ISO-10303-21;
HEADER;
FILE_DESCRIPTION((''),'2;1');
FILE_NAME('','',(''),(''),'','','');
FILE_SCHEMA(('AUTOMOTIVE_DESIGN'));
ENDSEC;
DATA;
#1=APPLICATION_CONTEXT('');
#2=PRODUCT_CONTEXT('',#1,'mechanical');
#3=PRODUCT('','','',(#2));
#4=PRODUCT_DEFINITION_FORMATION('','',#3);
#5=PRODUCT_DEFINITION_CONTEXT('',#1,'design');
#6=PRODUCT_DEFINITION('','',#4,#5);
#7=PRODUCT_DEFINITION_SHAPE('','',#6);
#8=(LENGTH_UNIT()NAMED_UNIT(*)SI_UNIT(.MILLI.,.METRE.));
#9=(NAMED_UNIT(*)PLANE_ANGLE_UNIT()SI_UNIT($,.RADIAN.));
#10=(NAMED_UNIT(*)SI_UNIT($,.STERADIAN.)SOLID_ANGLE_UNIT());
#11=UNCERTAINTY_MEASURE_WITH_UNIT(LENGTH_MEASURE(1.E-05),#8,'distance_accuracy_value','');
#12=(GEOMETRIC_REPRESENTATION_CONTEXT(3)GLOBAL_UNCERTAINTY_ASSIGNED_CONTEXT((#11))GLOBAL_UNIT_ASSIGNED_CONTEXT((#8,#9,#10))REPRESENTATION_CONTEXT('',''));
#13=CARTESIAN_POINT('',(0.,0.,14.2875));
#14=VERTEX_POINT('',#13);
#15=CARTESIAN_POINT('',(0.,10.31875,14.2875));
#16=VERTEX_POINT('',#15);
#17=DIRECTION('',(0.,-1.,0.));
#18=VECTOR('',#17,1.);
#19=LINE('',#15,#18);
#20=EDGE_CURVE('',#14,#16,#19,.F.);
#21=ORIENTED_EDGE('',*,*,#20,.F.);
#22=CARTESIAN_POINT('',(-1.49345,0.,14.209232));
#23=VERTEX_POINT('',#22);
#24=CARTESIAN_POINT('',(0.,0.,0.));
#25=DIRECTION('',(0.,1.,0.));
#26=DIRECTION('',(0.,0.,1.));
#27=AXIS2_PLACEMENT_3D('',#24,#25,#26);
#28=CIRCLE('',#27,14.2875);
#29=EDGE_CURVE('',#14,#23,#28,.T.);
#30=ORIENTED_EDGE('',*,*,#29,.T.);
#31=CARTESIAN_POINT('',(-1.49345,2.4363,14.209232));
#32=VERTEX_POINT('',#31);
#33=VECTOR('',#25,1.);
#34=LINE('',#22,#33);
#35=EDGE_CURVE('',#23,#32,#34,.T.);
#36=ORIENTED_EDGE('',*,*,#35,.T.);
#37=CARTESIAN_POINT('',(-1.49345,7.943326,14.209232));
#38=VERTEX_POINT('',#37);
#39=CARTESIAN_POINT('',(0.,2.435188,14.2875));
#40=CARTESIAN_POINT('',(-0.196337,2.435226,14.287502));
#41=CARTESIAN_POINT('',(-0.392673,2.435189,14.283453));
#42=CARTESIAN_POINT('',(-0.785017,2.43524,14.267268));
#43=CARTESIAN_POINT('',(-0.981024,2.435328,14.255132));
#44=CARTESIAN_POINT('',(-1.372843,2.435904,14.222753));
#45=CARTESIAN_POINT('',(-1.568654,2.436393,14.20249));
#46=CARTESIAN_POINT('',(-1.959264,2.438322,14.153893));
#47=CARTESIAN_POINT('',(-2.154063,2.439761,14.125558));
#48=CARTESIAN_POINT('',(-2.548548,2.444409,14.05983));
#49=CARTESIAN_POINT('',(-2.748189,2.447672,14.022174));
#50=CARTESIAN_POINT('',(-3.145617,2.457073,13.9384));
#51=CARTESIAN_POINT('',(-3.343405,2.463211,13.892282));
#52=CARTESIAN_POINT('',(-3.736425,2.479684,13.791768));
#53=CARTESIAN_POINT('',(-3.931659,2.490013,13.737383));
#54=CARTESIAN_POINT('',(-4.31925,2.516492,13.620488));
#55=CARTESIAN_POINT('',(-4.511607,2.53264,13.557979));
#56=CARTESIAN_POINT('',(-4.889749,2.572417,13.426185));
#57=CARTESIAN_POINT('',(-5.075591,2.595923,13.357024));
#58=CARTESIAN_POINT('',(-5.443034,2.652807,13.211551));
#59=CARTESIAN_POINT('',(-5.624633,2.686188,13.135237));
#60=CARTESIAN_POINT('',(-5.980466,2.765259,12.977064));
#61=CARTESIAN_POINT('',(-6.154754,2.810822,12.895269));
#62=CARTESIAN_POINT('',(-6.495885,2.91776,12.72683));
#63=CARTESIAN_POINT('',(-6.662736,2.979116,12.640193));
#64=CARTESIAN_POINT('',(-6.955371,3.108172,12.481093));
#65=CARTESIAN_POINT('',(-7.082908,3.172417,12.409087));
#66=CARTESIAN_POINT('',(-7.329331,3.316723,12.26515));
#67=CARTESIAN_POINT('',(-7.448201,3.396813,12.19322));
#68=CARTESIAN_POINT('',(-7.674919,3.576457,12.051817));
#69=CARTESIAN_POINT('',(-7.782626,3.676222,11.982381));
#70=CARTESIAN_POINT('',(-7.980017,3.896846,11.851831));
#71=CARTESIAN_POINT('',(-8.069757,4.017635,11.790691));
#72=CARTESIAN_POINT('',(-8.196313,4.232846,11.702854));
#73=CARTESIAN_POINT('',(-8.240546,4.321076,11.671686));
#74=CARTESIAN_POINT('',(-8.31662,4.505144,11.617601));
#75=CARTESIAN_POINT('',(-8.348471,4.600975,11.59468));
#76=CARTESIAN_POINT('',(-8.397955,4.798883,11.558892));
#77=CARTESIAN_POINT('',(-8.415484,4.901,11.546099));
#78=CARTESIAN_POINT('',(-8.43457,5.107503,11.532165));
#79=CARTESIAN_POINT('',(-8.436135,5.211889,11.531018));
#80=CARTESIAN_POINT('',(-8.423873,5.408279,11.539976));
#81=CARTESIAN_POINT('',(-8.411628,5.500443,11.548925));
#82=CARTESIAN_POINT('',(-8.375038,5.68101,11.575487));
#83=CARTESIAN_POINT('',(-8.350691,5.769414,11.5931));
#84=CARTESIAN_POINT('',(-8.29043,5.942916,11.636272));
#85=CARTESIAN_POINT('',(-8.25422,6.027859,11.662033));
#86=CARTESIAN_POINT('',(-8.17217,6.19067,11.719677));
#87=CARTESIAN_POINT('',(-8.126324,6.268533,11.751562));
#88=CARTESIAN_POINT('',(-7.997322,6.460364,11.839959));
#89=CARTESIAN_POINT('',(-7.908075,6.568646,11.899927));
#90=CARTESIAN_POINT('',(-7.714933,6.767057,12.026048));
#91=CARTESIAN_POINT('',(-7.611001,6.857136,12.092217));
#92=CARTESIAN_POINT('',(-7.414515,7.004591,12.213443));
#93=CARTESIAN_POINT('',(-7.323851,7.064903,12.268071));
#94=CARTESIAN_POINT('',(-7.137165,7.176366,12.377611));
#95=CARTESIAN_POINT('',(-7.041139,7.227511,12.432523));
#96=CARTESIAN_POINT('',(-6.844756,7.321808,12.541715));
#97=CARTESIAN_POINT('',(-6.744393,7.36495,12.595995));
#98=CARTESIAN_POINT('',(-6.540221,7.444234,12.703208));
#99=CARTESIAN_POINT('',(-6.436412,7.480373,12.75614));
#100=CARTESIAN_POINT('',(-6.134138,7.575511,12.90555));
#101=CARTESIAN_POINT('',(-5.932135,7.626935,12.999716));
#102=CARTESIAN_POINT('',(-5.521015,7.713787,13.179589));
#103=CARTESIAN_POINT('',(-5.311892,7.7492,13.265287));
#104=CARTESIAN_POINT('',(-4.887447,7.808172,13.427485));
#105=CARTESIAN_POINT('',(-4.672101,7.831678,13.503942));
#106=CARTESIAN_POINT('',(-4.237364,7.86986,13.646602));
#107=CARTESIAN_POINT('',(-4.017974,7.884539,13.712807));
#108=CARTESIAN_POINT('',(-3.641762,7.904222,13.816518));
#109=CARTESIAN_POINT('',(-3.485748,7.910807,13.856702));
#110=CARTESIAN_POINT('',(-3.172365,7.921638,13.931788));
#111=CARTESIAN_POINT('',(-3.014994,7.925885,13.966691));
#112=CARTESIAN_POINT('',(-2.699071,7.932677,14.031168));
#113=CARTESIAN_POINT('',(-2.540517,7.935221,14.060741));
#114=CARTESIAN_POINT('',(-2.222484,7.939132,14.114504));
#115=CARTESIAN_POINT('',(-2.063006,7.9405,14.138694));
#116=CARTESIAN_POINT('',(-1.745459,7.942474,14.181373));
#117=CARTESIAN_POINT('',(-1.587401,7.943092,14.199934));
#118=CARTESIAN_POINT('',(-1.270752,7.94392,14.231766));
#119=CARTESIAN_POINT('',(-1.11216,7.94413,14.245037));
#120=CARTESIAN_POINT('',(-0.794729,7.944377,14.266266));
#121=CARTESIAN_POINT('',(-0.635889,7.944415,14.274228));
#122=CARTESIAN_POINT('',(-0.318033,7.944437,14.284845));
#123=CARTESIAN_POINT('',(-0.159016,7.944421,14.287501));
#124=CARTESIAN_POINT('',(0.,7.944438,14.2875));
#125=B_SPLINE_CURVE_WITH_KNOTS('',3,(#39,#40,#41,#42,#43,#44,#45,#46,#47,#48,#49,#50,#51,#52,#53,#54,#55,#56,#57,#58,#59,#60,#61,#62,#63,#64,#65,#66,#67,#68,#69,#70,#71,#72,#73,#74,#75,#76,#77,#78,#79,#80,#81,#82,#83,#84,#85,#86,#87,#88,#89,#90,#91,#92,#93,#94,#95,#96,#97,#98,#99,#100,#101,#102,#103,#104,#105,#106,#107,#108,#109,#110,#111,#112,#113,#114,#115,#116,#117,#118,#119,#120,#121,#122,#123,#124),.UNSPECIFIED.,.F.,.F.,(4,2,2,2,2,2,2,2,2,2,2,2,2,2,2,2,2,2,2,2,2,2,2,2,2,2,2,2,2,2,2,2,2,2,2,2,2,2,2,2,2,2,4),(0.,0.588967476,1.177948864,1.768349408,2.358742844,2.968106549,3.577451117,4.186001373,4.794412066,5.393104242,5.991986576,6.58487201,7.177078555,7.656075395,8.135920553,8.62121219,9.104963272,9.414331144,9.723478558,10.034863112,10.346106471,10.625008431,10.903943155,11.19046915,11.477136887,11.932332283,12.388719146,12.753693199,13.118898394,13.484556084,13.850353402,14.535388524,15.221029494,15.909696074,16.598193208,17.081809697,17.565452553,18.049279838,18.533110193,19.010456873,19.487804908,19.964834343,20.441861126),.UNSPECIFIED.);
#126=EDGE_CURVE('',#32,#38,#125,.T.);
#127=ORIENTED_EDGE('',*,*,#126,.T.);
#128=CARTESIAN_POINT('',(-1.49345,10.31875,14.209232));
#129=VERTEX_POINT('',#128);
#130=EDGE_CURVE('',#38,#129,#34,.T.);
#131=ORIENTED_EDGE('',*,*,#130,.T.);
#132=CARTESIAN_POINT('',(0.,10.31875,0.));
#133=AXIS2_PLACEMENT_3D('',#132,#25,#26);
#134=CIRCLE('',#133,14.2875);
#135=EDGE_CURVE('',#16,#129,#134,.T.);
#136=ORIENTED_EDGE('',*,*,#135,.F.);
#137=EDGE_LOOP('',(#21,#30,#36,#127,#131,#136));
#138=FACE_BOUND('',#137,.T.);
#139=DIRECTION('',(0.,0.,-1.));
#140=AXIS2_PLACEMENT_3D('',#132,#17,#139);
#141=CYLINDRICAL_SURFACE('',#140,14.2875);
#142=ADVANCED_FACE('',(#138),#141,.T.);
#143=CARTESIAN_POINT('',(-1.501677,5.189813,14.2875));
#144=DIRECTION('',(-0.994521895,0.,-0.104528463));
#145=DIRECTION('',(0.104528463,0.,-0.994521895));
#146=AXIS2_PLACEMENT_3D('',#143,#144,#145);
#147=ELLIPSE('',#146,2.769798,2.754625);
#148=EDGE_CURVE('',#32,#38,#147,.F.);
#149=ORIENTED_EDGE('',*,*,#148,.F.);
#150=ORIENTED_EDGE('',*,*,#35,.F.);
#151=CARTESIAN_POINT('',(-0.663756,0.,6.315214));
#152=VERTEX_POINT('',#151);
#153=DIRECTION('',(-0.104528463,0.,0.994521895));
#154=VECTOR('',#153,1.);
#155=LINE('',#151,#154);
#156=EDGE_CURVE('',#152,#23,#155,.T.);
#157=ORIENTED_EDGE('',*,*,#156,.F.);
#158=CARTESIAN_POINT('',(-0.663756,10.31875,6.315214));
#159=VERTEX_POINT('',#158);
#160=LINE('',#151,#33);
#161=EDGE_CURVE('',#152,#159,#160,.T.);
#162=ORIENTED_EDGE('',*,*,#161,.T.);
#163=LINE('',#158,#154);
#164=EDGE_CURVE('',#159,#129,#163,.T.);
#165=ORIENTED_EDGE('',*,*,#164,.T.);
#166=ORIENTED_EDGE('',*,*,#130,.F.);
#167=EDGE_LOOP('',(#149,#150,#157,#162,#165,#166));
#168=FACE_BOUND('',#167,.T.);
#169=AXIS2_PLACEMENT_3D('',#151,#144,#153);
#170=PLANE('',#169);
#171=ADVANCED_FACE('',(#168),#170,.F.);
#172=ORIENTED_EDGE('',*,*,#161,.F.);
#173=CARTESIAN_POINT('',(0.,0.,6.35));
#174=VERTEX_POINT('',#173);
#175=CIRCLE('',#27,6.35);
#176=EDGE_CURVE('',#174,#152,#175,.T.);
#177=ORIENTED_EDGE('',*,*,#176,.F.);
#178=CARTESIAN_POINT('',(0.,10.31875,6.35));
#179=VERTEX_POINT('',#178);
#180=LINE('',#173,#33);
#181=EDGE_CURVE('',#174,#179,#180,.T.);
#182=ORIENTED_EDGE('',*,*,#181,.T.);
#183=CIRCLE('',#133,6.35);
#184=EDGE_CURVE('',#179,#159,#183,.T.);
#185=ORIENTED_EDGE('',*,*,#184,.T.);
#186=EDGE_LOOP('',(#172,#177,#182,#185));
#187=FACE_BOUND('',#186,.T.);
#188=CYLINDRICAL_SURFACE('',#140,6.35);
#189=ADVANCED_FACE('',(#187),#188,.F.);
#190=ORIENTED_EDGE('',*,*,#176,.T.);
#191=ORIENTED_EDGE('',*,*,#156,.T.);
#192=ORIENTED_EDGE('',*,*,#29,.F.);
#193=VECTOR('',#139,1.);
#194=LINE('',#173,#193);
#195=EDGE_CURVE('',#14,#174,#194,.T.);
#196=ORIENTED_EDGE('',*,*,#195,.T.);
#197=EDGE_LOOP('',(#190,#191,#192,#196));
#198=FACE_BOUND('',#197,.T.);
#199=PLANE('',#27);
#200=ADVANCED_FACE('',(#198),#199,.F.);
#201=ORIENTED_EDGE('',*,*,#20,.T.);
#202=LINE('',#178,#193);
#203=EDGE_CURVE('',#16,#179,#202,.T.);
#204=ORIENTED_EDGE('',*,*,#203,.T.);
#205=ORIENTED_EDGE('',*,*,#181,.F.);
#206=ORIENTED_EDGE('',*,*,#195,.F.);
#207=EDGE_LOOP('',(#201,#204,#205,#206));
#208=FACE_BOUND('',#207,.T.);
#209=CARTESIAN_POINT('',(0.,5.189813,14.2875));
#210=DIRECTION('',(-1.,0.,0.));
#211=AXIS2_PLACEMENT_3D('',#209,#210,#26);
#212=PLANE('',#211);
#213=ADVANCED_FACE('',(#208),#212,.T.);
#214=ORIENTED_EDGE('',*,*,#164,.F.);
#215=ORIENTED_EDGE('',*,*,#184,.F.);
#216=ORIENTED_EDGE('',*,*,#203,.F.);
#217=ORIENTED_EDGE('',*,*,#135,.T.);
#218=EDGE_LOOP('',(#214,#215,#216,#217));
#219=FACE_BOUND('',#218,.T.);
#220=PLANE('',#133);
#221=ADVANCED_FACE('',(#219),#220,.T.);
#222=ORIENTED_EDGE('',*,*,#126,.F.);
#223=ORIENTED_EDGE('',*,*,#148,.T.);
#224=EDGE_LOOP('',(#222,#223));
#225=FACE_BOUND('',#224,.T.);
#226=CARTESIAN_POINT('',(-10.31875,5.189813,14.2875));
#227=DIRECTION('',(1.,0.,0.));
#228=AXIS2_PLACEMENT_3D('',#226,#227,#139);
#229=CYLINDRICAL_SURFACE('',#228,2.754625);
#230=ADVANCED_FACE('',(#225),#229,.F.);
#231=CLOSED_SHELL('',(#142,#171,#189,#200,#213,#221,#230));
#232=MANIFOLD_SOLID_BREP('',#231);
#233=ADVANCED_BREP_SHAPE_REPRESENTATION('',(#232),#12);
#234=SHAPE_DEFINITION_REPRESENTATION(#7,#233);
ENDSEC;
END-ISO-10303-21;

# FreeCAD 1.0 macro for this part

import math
import FreeCAD as App
import Part
import Sketcher
from FreeCAD import Vector
Q = App.Units.Quantity

doc = App.newDocument("Part")
body = doc.addObject("PartDesign::Body", "Body")

# Sketch on XZ plane
sketch1 = body.newObject("Sketcher::SketchObject", "Sketch")
sketch1.AttachmentSupport = (doc.getObject("XZ_Plane"), [""])
sketch1.MapMode = "FlatFace"
sketch1.addGeometry(Part.Circle(Vector(0, 0, 0), Vector(0, 0, 1), 14), False)
sketch1.addGeometry(Part.Circle(Vector(0, 0, 0), Vector(0, 0, 1), 6), False)
sketch1.addConstraint(Sketcher.Constraint("Coincident", 0, 3, -1, 1))
sketch1.addConstraint(Sketcher.Constraint("Coincident", 1, 3, -1, 1))
sketch1.addConstraint(Sketcher.Constraint("Diameter", 1, Q("0.5 in")))
sketch1.addConstraint(Sketcher.Constraint("Diameter", 0, Q("1.125 in")))
pad1 = body.newObject("PartDesign::Pad", "Pad")
pad1.Profile = sketch1
pad1.Length = Q("0.40625 in")
pad1.Reversed = True

# Sketch on YZ plane
sketch2 = body.newObject("Sketcher::SketchObject", "Sketch001")
sketch2.AttachmentSupport = (doc.getObject("YZ_Plane"), [""])
sketch2.MapMode = "FlatFace"
sketch2.addGeometry(Part.LineSegment(Vector(7.9, 14.3, 0), Vector(7.9, 16.1, 0)), False)
sketch2.addGeometry(Part.LineSegment(Vector(7.9, 16.1, 0), Vector(2.4, 16.1, 0)), False)
sketch2.addGeometry(Part.LineSegment(Vector(2.4, 16.1, 0), Vector(2.4, 14.3, 0)), False)
sketch2.addGeometry(Part.ArcOfCircle(Part.Circle(Vector(5.2, 14.3, 0), Vector(0, 0, 1), 2.8), math.radians(180), math.radians(360)), False)
sketch2.addConstraint(Sketcher.Constraint("Coincident", 0, 2, 1, 1))
sketch2.addConstraint(Sketcher.Constraint("Coincident", 1, 2, 2, 1))
sketch2.addConstraint(Sketcher.Constraint("Tangent", 2, 2, 3, 1))
sketch2.addConstraint(Sketcher.Constraint("Tangent", 3, 2, 0, 1))
sketch2.addConstraint(Sketcher.Constraint("Vertical", 0))
sketch2.addConstraint(Sketcher.Constraint("Horizontal", 1))
sketch2.addConstraint(Sketcher.Constraint("Vertical", 2))
sketch2.addConstraint(Sketcher.Constraint("DistanceY", -1, 1, 3, 3, Q("0.5625 in")))
sketch2.addConstraint(Sketcher.Constraint("Radius", 3, 2.754625))
sketch2.addConstraint(Sketcher.Constraint("DistanceY", 0, 1, 0, 2, 1.783681))
sketch2.addConstraint(Sketcher.Constraint("DistanceX", -1, 1, 3, 3, 5.189813))
pocket1 = body.newObject("PartDesign::Pocket", "Pocket")
pocket1.Profile = sketch2
pocket1.Length = Q("0.40625 in")

# Sketch on XZ plane
sketch3 = body.newObject("Sketcher::SketchObject", "Sketch002")
sketch3.AttachmentSupport = (doc.getObject("XZ_Plane"), [""])
sketch3.MapMode = "FlatFace"
sketch3.AttachmentOffset = App.Placement(Vector(0, 0, -0.40625 * 25.4), App.Rotation())
sketch3.addGeometry(Part.LineSegment(Vector(0, 14.3, 0), Vector(0, 6.3, 0)), False)
sketch3.addGeometry(Part.ArcOfCircle(Part.Circle(Vector(0, 0, 0), Vector(0, 0, 1), 6.3), math.radians(90), math.radians(96)), False)
sketch3.addGeometry(Part.LineSegment(Vector(-0.7, 6.3, 0), Vector(-1.5, 14.2, 0)), False)
sketch3.addGeometry(Part.ArcOfCircle(Part.Circle(Vector(0, 0, 0), Vector(0, 0, 1), 14.3), math.radians(90), math.radians(96)), False)
sketch3.addConstraint(Sketcher.Constraint("Coincident", 0, 2, 1, 1))
sketch3.addConstraint(Sketcher.Constraint("Coincident", 1, 2, 2, 1))
sketch3.addConstraint(Sketcher.Constraint("Coincident", 2, 2, 3, 2))
sketch3.addConstraint(Sketcher.Constraint("Coincident", 3, 1, 0, 1))
sketch3.addConstraint(Sketcher.Constraint("Vertical", 0))
sketch3.addConstraint(Sketcher.Constraint("Coincident", 1, 3, -1, 1))
sketch3.addConstraint(Sketcher.Constraint("Coincident", 3, 3, -1, 1))
sketch3.addConstraint(Sketcher.Constraint("PointOnObject", 0, 2, -2))
sketch3.addConstraint(Sketcher.Constraint("Radius", 1, Q("0.25 in")))
sketch3.addConstraint(Sketcher.Constraint("Angle", 2, Q("96 deg")))
sketch3.addConstraint(Sketcher.Constraint("Radius", 3, Q("0.5625 in")))
sketch3.addConstraint(Sketcher.Constraint("DistanceX", 2, 2, -1, 1, 1.49345))
pocket2 = body.newObject("PartDesign::Pocket", "Pocket001")
pocket2.Profile = sketch3
pocket2.Length = Q("0.40625 in")
pocket2.Reversed = True

doc.recompute()
